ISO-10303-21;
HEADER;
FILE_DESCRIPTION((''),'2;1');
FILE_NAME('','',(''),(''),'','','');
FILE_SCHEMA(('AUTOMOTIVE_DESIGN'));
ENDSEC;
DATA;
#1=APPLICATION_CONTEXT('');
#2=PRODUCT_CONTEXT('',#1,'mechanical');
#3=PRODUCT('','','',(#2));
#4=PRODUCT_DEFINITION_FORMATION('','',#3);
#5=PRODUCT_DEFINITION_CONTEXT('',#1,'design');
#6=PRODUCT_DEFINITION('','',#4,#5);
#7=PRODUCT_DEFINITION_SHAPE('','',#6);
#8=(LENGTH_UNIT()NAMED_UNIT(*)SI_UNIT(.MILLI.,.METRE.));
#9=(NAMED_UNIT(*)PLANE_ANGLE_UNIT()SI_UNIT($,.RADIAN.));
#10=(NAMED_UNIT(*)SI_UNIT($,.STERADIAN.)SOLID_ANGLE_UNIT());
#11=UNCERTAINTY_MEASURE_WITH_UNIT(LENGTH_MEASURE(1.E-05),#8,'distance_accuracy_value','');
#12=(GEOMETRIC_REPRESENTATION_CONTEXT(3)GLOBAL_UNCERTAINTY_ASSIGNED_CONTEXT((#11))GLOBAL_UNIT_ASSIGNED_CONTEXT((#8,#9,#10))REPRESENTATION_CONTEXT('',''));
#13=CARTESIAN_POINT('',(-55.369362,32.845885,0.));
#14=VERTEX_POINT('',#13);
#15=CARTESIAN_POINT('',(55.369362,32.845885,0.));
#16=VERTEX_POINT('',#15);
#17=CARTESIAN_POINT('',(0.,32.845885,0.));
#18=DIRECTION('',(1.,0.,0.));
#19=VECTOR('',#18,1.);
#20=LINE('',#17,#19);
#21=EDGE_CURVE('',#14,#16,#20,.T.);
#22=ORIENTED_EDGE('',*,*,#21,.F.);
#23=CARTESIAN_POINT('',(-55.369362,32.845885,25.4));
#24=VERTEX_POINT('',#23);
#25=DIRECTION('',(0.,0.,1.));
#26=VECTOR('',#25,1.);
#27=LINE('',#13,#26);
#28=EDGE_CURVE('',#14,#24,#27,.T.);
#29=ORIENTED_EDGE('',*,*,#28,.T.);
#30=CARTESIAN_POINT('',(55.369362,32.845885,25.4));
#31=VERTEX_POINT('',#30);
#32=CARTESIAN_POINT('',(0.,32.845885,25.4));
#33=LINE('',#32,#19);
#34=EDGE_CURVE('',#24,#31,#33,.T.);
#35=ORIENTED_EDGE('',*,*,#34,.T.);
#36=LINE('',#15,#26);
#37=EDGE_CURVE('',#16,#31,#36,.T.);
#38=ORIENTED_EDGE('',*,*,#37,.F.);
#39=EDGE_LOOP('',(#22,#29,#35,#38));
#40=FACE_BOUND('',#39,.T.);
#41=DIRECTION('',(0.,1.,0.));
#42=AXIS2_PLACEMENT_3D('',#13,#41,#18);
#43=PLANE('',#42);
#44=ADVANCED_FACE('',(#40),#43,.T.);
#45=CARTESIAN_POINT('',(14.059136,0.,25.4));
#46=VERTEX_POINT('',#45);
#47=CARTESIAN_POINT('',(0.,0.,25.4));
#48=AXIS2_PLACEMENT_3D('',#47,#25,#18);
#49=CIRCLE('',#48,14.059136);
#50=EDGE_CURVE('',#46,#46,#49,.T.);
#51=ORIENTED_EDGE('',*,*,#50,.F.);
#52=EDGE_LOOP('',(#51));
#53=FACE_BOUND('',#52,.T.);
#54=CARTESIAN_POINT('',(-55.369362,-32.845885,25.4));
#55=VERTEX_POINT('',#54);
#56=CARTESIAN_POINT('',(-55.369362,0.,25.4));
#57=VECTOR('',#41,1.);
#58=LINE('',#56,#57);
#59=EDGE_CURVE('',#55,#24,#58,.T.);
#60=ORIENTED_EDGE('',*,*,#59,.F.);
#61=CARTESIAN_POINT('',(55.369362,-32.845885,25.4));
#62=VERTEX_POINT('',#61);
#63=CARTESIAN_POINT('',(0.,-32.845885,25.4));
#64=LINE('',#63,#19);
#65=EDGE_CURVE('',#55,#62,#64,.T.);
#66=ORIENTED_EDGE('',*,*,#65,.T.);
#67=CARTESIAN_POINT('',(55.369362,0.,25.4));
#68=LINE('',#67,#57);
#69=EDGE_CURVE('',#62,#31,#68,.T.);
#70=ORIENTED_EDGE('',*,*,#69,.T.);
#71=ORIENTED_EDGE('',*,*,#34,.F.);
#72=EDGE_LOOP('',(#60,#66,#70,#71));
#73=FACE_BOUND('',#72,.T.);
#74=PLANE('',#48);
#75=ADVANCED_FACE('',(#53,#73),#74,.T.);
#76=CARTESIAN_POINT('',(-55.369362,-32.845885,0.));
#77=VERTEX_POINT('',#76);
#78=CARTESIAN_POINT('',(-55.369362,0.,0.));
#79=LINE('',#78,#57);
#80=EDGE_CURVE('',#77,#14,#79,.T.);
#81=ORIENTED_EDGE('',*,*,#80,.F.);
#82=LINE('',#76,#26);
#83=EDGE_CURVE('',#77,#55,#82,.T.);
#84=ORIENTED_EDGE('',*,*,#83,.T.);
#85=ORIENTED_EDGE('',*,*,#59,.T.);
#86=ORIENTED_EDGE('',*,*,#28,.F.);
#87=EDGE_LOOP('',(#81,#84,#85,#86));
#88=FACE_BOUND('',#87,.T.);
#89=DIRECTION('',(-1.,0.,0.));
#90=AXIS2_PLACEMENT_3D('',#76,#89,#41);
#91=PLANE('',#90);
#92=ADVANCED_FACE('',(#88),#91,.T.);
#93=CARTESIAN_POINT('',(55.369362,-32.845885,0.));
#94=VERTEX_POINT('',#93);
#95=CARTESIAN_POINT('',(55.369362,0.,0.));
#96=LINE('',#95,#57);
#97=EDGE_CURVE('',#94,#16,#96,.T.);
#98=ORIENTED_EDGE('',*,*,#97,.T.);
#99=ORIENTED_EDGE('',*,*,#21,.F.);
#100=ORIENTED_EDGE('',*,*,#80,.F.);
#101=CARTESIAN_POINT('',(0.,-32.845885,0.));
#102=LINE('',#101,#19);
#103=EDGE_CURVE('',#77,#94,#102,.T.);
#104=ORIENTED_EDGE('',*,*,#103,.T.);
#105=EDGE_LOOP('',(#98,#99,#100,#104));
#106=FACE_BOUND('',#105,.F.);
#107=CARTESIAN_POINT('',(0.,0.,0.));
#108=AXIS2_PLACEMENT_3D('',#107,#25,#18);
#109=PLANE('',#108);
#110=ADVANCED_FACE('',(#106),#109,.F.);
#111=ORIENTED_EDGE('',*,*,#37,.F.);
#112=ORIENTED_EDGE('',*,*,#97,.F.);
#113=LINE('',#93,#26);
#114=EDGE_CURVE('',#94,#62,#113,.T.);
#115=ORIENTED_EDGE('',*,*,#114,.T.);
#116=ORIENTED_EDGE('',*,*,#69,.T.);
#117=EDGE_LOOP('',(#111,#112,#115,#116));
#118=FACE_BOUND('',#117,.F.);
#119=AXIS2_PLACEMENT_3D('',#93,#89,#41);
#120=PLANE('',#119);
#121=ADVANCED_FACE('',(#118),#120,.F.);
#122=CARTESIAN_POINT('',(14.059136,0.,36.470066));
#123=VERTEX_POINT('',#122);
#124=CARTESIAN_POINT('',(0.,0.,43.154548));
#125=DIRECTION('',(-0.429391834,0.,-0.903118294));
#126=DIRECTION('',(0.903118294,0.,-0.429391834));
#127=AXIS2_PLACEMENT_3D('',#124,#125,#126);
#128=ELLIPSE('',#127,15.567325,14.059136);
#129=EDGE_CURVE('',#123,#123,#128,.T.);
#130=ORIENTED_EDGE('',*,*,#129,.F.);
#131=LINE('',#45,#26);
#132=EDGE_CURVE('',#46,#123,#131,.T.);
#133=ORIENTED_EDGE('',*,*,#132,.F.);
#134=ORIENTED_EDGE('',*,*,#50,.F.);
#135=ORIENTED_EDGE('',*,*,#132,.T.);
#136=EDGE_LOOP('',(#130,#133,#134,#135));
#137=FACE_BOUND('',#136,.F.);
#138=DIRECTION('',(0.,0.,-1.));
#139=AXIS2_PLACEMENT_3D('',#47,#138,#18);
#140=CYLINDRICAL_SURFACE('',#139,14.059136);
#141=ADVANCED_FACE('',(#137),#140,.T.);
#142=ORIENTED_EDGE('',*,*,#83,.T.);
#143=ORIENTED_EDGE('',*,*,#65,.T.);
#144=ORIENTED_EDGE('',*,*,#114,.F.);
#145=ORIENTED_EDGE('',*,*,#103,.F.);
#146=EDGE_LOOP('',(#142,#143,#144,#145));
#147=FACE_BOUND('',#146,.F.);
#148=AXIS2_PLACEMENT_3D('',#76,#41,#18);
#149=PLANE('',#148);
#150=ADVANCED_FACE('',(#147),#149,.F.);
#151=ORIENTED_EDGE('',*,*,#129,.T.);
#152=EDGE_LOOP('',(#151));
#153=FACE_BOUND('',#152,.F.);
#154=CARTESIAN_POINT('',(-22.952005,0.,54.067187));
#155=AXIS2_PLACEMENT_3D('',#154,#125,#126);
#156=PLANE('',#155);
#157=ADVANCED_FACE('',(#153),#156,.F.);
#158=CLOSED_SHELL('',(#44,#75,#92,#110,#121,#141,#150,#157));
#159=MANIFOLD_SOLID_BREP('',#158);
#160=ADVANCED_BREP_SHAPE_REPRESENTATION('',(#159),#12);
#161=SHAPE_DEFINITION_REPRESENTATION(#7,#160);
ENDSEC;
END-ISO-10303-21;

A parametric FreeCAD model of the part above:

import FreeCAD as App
import Part
import Sketcher
from FreeCAD import Vector
Q = App.Units.Quantity

doc = App.newDocument("Part")
body = doc.addObject("PartDesign::Body", "Body")
body.AllowCompound = True

# Sketch on XY plane
sketch1 = body.newObject("Sketcher::SketchObject", "Sketch")
sketch1.AttachmentSupport = (doc.getObject("XY_Plane"), [""])
sketch1.MapMode = "FlatFace"
sketch1.addGeometry([
    Part.LineSegment(Vector(-55, 33, 0), Vector(-55, -33, 0)),
    Part.LineSegment(Vector(-55, -33, 0), Vector(55, -33, 0)),
    Part.LineSegment(Vector(55, -33, 0), Vector(55, 33, 0)),
    Part.LineSegment(Vector(55, 33, 0), Vector(-55, 33, 0)),
], False)
sketch1.addConstraint([
    Sketcher.Constraint("Coincident", 0, 2, 1, 1),
    Sketcher.Constraint("Coincident", 1, 2, 2, 1),
    Sketcher.Constraint("Coincident", 2, 2, 3, 1),
    Sketcher.Constraint("Coincident", 3, 2, 0, 1),
    Sketcher.Constraint("Vertical", 0),
    Sketcher.Constraint("Horizontal", 1),
    Sketcher.Constraint("Vertical", 2),
    Sketcher.Constraint("Horizontal", 3),
    Sketcher.Constraint("Symmetric", 0, 2, 2, 2, -1, 1),
    Sketcher.Constraint("DistanceY", 0, 2, 0, 1, Q("65.69177 mm")),
    Sketcher.Constraint("DistanceX", 1, 1, 1, 2, Q("110.738724 mm")),
])
pad1 = body.newObject("PartDesign::Pad", "Pad")
pad1.Profile = sketch1
pad1.Length = Q("1 in")

# Sketch on XY plane
sketch2 = body.newObject("Sketcher::SketchObject", "Sketch001")
sketch2.AttachmentSupport = (doc.getObject("XY_Plane"), [""])
sketch2.MapMode = "FlatFace"
sketch2.AttachmentOffset = App.Placement(Vector(0, 0, 1 * 25.4), App.Rotation())
sketch2.addGeometry(Part.Circle(Vector(0, 0, 0), Vector(0, 0, 1), 14), False)
sketch2.addConstraint([
    Sketcher.Constraint("Coincident", 0, 3, -1, 1),
    Sketcher.Constraint("Diameter", 0, Q("28.118272 mm")),
])
pad2 = body.newObject("PartDesign::Pad", "Pad001")
pad2.Profile = sketch2
pad2.Length = Q("2 in")

# Sketch on XZ plane
sketch3 = body.newObject("Sketcher::SketchObject", "Sketch002")
sketch3.AttachmentSupport = (doc.getObject("XZ_Plane"), [""])
sketch3.MapMode = "FlatFace"
sketch3.addGeometry([
    Part.LineSegment(Vector(28, 54, 0), Vector(-23, 54, 0)),
    Part.LineSegment(Vector(-23, 54, 0), Vector(28, 30, 0)),
    Part.LineSegment(Vector(28, 30, 0), Vector(28, 54, 0)),
], False)
sketch3.addConstraint([
    Sketcher.Constraint("Coincident", 0, 2, 1, 1),
    Sketcher.Constraint("Coincident", 1, 2, 2, 1),
    Sketcher.Constraint("Coincident", 2, 2, 0, 1),
    Sketcher.Constraint("Horizontal", 0),
    Sketcher.Constraint("Vertical", 2),
    Sketcher.Constraint("DistanceX", 0, 2, 0, 1, Q("50.704038 mm")),
    Sketcher.Constraint("DistanceY", 2, 1, 2, 2, Q("24.107473 mm")),
    Sketcher.Constraint("DistanceX", 0, 2, -1, 1, Q("22.952005 mm")),
    Sketcher.Constraint("DistanceY", -1, 1, 0, 2, Q("54.067187 mm")),
])
pocket1 = body.newObject("PartDesign::Pocket", "Pocket")
pocket1.Profile = sketch3
pocket1.Length = Q("4 in")
pocket1.Midplane = True

# Sketch on XZ plane
sketch4 = body.newObject("Sketcher::SketchObject", "Sketch003")
sketch4.AttachmentSupport = (doc.getObject("XZ_Plane"), [""])
sketch4.MapMode = "FlatFace"
sketch4.addGeometry([
    Part.LineSegment(Vector(-33, 82, 0), Vector(-33, 53, 0)),
    Part.LineSegment(Vector(-33, 53, 0), Vector(35, 53, 0)),
    Part.LineSegment(Vector(35, 53, 0), Vector(28, 82, 0)),
    Part.LineSegment(Vector(28, 82, 0), Vector(-33, 82, 0)),
], False)
sketch4.addConstraint([
    Sketcher.Constraint("Coincident", 0, 2, 1, 1),
    Sketcher.Constraint("Coincident", 1, 2, 2, 1),
    Sketcher.Constraint("Coincident", 2, 2, 3, 1),
    Sketcher.Constraint("Coincident", 3, 2, 0, 1),
    Sketcher.Constraint("Vertical", 0),
    Sketcher.Constraint("Horizontal", 1),
    Sketcher.Constraint("Horizontal", 3),
    Sketcher.Constraint("DistanceX", 1, 1, 1, 2, Q("2.6670002 in")),
    Sketcher.Constraint("DistanceX", 3, 2, 3, 1, Q("2.3870001 in")),
    Sketcher.Constraint("DistanceY", 0, 2, 0, 1, Q("1.127 in")),
    Sketcher.Constraint("DistanceX", 0, 2, -1, 1, Q("1.2985 in")),
    Sketcher.Constraint("DistanceY", -1, 1, 0, 2, Q("2.0825 in")),
])
pocket2 = body.newObject("PartDesign::Pocket", "Pocket001")
pocket2.Profile = sketch4
pocket2.Length = Q("2 in")
pocket2.Midplane = True

doc.recompute()
